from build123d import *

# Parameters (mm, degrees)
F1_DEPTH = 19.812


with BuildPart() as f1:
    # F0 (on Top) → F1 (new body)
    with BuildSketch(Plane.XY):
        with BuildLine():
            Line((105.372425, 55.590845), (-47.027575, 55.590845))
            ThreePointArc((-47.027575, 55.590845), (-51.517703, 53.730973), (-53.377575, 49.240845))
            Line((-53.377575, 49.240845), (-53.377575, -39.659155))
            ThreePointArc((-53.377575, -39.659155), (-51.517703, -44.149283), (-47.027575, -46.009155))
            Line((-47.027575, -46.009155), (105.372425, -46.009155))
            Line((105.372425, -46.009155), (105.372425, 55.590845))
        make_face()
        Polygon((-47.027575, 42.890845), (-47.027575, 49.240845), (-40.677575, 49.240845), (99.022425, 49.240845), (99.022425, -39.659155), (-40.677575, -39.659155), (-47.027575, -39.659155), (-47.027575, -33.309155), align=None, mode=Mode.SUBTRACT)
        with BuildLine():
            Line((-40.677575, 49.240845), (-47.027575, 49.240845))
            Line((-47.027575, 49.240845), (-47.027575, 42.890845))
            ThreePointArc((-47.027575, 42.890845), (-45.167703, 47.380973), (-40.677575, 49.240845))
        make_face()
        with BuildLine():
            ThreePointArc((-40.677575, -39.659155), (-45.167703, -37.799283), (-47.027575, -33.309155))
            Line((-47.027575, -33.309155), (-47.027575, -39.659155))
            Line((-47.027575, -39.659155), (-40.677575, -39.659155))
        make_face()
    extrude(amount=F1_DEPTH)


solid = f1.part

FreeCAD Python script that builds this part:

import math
import FreeCAD as App
import Part
import Sketcher
Q = App.Units.Quantity

doc = App.newDocument("Part")
body = doc.addObject("PartDesign::Body", "Body")

# Sketch on XY plane
sketch1 = body.newObject("Sketcher::SketchObject", "Sketch")
sketch1.AttachmentSupport = (doc.getObject("XY_Plane"), [""])
sketch1.MapMode = "FlatFace"
sketch1.addGeometry(Part.LineSegment(App.Vector(105, 56, 0), App.Vector(-47, 56, 0)), False)
sketch1.addGeometry(Part.ArcOfCircle(Part.Circle(App.Vector(-47, 49, 0), App.Vector(0, 0, 1), 6), math.radians(90), math.radians(180)), False)
sketch1.addGeometry(Part.LineSegment(App.Vector(-53, 49, 0), App.Vector(-53, -40, 0)), False)
sketch1.addGeometry(Part.ArcOfCircle(Part.Circle(App.Vector(-47, -40, 0), App.Vector(0, 0, 1), 6), math.radians(-180), math.radians(-90)), False)
sketch1.addGeometry(Part.LineSegment(App.Vector(-47, -46, 0), App.Vector(105, -46, 0)), False)
sketch1.addGeometry(Part.LineSegment(App.Vector(105, -46, 0), App.Vector(105, 56, 0)), False)
sketch1.addGeometry(Part.LineSegment(App.Vector(-47, -33, 0), App.Vector(-47, 43, 0)), False)
sketch1.addGeometry(Part.ArcOfCircle(Part.Circle(App.Vector(-41, 43, 0), App.Vector(0, 0, 1), 6), math.radians(90), math.radians(180)), False)
sketch1.addGeometry(Part.LineSegment(App.Vector(-41, 49, 0), App.Vector(99, 49, 0)), False)
sketch1.addGeometry(Part.LineSegment(App.Vector(99, 49, 0), App.Vector(99, -40, 0)), False)
sketch1.addGeometry(Part.LineSegment(App.Vector(99, -40, 0), App.Vector(-41, -40, 0)), False)
sketch1.addGeometry(Part.ArcOfCircle(Part.Circle(App.Vector(-41, -33, 0), App.Vector(0, 0, 1), 6), math.radians(-180), math.radians(-90)), False)
sketch1.addConstraint(Sketcher.Constraint("Tangent", 0, 2, 1, 1))
sketch1.addConstraint(Sketcher.Constraint("Tangent", 1, 2, 2, 1))
sketch1.addConstraint(Sketcher.Constraint("Tangent", 2, 2, 3, 1))
sketch1.addConstraint(Sketcher.Constraint("Tangent", 3, 2, 4, 1))
sketch1.addConstraint(Sketcher.Constraint("Coincident", 4, 2, 5, 1))
sketch1.addConstraint(Sketcher.Constraint("Coincident", 5, 2, 0, 1))
sketch1.addConstraint(Sketcher.Constraint("Tangent", 6, 2, 7, 2))
sketch1.addConstraint(Sketcher.Constraint("Tangent", 7, 1, 8, 1))
sketch1.addConstraint(Sketcher.Constraint("Coincident", 8, 2, 9, 1))
sketch1.addConstraint(Sketcher.Constraint("Coincident", 9, 2, 10, 1))
sketch1.addConstraint(Sketcher.Constraint("Tangent", 10, 2, 11, 2))
sketch1.addConstraint(Sketcher.Constraint("Tangent", 11, 1, 6, 1))
sketch1.addConstraint(Sketcher.Constraint("Horizontal", 0))
sketch1.addConstraint(Sketcher.Constraint("Vertical", 2))
sketch1.addConstraint(Sketcher.Constraint("Horizontal", 4))
sketch1.addConstraint(Sketcher.Constraint("Vertical", 5))
sketch1.addConstraint(Sketcher.Constraint("Vertical", 6))
sketch1.addConstraint(Sketcher.Constraint("Horizontal", 8))
sketch1.addConstraint(Sketcher.Constraint("Vertical", 9))
sketch1.addConstraint(Sketcher.Constraint("Horizontal", 10))
sketch1.addConstraint(Sketcher.Constraint("Equal", 1, 3))
sketch1.addConstraint(Sketcher.Constraint("Equal", 3, 7))
sketch1.addConstraint(Sketcher.Constraint("Equal", 7, 11))
sketch1.addConstraint(Sketcher.Constraint("Horizontal", 1, 2, 7, 1))
sketch1.addConstraint(Sketcher.Constraint("Horizontal", 2, 2, 9, 2))
sketch1.addConstraint(Sketcher.Constraint("Vertical", 3, 2, 6, 2))
sketch1.addConstraint(Sketcher.Constraint("DistanceX", 0, 2, 0, 1, Q("6 in")))
sketch1.addConstraint(Sketcher.Constraint("DistanceY", 5, 1, 5, 2, Q("4 in")))
sketch1.addConstraint(Sketcher.Constraint("DistanceY", 6, 1, 6, 2, Q("3 in")))
sketch1.addConstraint(Sketcher.Constraint("DistanceX", 8, 1, 8, 2, Q("5.5 in")))
sketch1.addConstraint(Sketcher.Constraint("DistanceX", 1, 3, -1, 1, Q("47.027575 mm")))
sketch1.addConstraint(Sketcher.Constraint("DistanceY", -1, 1, 1, 3, Q("49.240845 mm")))
pad1 = body.newObject("PartDesign::Pad", "Pad")
pad1.Profile = sketch1
pad1.Length = Q("0.78 in")

doc.recompute()
